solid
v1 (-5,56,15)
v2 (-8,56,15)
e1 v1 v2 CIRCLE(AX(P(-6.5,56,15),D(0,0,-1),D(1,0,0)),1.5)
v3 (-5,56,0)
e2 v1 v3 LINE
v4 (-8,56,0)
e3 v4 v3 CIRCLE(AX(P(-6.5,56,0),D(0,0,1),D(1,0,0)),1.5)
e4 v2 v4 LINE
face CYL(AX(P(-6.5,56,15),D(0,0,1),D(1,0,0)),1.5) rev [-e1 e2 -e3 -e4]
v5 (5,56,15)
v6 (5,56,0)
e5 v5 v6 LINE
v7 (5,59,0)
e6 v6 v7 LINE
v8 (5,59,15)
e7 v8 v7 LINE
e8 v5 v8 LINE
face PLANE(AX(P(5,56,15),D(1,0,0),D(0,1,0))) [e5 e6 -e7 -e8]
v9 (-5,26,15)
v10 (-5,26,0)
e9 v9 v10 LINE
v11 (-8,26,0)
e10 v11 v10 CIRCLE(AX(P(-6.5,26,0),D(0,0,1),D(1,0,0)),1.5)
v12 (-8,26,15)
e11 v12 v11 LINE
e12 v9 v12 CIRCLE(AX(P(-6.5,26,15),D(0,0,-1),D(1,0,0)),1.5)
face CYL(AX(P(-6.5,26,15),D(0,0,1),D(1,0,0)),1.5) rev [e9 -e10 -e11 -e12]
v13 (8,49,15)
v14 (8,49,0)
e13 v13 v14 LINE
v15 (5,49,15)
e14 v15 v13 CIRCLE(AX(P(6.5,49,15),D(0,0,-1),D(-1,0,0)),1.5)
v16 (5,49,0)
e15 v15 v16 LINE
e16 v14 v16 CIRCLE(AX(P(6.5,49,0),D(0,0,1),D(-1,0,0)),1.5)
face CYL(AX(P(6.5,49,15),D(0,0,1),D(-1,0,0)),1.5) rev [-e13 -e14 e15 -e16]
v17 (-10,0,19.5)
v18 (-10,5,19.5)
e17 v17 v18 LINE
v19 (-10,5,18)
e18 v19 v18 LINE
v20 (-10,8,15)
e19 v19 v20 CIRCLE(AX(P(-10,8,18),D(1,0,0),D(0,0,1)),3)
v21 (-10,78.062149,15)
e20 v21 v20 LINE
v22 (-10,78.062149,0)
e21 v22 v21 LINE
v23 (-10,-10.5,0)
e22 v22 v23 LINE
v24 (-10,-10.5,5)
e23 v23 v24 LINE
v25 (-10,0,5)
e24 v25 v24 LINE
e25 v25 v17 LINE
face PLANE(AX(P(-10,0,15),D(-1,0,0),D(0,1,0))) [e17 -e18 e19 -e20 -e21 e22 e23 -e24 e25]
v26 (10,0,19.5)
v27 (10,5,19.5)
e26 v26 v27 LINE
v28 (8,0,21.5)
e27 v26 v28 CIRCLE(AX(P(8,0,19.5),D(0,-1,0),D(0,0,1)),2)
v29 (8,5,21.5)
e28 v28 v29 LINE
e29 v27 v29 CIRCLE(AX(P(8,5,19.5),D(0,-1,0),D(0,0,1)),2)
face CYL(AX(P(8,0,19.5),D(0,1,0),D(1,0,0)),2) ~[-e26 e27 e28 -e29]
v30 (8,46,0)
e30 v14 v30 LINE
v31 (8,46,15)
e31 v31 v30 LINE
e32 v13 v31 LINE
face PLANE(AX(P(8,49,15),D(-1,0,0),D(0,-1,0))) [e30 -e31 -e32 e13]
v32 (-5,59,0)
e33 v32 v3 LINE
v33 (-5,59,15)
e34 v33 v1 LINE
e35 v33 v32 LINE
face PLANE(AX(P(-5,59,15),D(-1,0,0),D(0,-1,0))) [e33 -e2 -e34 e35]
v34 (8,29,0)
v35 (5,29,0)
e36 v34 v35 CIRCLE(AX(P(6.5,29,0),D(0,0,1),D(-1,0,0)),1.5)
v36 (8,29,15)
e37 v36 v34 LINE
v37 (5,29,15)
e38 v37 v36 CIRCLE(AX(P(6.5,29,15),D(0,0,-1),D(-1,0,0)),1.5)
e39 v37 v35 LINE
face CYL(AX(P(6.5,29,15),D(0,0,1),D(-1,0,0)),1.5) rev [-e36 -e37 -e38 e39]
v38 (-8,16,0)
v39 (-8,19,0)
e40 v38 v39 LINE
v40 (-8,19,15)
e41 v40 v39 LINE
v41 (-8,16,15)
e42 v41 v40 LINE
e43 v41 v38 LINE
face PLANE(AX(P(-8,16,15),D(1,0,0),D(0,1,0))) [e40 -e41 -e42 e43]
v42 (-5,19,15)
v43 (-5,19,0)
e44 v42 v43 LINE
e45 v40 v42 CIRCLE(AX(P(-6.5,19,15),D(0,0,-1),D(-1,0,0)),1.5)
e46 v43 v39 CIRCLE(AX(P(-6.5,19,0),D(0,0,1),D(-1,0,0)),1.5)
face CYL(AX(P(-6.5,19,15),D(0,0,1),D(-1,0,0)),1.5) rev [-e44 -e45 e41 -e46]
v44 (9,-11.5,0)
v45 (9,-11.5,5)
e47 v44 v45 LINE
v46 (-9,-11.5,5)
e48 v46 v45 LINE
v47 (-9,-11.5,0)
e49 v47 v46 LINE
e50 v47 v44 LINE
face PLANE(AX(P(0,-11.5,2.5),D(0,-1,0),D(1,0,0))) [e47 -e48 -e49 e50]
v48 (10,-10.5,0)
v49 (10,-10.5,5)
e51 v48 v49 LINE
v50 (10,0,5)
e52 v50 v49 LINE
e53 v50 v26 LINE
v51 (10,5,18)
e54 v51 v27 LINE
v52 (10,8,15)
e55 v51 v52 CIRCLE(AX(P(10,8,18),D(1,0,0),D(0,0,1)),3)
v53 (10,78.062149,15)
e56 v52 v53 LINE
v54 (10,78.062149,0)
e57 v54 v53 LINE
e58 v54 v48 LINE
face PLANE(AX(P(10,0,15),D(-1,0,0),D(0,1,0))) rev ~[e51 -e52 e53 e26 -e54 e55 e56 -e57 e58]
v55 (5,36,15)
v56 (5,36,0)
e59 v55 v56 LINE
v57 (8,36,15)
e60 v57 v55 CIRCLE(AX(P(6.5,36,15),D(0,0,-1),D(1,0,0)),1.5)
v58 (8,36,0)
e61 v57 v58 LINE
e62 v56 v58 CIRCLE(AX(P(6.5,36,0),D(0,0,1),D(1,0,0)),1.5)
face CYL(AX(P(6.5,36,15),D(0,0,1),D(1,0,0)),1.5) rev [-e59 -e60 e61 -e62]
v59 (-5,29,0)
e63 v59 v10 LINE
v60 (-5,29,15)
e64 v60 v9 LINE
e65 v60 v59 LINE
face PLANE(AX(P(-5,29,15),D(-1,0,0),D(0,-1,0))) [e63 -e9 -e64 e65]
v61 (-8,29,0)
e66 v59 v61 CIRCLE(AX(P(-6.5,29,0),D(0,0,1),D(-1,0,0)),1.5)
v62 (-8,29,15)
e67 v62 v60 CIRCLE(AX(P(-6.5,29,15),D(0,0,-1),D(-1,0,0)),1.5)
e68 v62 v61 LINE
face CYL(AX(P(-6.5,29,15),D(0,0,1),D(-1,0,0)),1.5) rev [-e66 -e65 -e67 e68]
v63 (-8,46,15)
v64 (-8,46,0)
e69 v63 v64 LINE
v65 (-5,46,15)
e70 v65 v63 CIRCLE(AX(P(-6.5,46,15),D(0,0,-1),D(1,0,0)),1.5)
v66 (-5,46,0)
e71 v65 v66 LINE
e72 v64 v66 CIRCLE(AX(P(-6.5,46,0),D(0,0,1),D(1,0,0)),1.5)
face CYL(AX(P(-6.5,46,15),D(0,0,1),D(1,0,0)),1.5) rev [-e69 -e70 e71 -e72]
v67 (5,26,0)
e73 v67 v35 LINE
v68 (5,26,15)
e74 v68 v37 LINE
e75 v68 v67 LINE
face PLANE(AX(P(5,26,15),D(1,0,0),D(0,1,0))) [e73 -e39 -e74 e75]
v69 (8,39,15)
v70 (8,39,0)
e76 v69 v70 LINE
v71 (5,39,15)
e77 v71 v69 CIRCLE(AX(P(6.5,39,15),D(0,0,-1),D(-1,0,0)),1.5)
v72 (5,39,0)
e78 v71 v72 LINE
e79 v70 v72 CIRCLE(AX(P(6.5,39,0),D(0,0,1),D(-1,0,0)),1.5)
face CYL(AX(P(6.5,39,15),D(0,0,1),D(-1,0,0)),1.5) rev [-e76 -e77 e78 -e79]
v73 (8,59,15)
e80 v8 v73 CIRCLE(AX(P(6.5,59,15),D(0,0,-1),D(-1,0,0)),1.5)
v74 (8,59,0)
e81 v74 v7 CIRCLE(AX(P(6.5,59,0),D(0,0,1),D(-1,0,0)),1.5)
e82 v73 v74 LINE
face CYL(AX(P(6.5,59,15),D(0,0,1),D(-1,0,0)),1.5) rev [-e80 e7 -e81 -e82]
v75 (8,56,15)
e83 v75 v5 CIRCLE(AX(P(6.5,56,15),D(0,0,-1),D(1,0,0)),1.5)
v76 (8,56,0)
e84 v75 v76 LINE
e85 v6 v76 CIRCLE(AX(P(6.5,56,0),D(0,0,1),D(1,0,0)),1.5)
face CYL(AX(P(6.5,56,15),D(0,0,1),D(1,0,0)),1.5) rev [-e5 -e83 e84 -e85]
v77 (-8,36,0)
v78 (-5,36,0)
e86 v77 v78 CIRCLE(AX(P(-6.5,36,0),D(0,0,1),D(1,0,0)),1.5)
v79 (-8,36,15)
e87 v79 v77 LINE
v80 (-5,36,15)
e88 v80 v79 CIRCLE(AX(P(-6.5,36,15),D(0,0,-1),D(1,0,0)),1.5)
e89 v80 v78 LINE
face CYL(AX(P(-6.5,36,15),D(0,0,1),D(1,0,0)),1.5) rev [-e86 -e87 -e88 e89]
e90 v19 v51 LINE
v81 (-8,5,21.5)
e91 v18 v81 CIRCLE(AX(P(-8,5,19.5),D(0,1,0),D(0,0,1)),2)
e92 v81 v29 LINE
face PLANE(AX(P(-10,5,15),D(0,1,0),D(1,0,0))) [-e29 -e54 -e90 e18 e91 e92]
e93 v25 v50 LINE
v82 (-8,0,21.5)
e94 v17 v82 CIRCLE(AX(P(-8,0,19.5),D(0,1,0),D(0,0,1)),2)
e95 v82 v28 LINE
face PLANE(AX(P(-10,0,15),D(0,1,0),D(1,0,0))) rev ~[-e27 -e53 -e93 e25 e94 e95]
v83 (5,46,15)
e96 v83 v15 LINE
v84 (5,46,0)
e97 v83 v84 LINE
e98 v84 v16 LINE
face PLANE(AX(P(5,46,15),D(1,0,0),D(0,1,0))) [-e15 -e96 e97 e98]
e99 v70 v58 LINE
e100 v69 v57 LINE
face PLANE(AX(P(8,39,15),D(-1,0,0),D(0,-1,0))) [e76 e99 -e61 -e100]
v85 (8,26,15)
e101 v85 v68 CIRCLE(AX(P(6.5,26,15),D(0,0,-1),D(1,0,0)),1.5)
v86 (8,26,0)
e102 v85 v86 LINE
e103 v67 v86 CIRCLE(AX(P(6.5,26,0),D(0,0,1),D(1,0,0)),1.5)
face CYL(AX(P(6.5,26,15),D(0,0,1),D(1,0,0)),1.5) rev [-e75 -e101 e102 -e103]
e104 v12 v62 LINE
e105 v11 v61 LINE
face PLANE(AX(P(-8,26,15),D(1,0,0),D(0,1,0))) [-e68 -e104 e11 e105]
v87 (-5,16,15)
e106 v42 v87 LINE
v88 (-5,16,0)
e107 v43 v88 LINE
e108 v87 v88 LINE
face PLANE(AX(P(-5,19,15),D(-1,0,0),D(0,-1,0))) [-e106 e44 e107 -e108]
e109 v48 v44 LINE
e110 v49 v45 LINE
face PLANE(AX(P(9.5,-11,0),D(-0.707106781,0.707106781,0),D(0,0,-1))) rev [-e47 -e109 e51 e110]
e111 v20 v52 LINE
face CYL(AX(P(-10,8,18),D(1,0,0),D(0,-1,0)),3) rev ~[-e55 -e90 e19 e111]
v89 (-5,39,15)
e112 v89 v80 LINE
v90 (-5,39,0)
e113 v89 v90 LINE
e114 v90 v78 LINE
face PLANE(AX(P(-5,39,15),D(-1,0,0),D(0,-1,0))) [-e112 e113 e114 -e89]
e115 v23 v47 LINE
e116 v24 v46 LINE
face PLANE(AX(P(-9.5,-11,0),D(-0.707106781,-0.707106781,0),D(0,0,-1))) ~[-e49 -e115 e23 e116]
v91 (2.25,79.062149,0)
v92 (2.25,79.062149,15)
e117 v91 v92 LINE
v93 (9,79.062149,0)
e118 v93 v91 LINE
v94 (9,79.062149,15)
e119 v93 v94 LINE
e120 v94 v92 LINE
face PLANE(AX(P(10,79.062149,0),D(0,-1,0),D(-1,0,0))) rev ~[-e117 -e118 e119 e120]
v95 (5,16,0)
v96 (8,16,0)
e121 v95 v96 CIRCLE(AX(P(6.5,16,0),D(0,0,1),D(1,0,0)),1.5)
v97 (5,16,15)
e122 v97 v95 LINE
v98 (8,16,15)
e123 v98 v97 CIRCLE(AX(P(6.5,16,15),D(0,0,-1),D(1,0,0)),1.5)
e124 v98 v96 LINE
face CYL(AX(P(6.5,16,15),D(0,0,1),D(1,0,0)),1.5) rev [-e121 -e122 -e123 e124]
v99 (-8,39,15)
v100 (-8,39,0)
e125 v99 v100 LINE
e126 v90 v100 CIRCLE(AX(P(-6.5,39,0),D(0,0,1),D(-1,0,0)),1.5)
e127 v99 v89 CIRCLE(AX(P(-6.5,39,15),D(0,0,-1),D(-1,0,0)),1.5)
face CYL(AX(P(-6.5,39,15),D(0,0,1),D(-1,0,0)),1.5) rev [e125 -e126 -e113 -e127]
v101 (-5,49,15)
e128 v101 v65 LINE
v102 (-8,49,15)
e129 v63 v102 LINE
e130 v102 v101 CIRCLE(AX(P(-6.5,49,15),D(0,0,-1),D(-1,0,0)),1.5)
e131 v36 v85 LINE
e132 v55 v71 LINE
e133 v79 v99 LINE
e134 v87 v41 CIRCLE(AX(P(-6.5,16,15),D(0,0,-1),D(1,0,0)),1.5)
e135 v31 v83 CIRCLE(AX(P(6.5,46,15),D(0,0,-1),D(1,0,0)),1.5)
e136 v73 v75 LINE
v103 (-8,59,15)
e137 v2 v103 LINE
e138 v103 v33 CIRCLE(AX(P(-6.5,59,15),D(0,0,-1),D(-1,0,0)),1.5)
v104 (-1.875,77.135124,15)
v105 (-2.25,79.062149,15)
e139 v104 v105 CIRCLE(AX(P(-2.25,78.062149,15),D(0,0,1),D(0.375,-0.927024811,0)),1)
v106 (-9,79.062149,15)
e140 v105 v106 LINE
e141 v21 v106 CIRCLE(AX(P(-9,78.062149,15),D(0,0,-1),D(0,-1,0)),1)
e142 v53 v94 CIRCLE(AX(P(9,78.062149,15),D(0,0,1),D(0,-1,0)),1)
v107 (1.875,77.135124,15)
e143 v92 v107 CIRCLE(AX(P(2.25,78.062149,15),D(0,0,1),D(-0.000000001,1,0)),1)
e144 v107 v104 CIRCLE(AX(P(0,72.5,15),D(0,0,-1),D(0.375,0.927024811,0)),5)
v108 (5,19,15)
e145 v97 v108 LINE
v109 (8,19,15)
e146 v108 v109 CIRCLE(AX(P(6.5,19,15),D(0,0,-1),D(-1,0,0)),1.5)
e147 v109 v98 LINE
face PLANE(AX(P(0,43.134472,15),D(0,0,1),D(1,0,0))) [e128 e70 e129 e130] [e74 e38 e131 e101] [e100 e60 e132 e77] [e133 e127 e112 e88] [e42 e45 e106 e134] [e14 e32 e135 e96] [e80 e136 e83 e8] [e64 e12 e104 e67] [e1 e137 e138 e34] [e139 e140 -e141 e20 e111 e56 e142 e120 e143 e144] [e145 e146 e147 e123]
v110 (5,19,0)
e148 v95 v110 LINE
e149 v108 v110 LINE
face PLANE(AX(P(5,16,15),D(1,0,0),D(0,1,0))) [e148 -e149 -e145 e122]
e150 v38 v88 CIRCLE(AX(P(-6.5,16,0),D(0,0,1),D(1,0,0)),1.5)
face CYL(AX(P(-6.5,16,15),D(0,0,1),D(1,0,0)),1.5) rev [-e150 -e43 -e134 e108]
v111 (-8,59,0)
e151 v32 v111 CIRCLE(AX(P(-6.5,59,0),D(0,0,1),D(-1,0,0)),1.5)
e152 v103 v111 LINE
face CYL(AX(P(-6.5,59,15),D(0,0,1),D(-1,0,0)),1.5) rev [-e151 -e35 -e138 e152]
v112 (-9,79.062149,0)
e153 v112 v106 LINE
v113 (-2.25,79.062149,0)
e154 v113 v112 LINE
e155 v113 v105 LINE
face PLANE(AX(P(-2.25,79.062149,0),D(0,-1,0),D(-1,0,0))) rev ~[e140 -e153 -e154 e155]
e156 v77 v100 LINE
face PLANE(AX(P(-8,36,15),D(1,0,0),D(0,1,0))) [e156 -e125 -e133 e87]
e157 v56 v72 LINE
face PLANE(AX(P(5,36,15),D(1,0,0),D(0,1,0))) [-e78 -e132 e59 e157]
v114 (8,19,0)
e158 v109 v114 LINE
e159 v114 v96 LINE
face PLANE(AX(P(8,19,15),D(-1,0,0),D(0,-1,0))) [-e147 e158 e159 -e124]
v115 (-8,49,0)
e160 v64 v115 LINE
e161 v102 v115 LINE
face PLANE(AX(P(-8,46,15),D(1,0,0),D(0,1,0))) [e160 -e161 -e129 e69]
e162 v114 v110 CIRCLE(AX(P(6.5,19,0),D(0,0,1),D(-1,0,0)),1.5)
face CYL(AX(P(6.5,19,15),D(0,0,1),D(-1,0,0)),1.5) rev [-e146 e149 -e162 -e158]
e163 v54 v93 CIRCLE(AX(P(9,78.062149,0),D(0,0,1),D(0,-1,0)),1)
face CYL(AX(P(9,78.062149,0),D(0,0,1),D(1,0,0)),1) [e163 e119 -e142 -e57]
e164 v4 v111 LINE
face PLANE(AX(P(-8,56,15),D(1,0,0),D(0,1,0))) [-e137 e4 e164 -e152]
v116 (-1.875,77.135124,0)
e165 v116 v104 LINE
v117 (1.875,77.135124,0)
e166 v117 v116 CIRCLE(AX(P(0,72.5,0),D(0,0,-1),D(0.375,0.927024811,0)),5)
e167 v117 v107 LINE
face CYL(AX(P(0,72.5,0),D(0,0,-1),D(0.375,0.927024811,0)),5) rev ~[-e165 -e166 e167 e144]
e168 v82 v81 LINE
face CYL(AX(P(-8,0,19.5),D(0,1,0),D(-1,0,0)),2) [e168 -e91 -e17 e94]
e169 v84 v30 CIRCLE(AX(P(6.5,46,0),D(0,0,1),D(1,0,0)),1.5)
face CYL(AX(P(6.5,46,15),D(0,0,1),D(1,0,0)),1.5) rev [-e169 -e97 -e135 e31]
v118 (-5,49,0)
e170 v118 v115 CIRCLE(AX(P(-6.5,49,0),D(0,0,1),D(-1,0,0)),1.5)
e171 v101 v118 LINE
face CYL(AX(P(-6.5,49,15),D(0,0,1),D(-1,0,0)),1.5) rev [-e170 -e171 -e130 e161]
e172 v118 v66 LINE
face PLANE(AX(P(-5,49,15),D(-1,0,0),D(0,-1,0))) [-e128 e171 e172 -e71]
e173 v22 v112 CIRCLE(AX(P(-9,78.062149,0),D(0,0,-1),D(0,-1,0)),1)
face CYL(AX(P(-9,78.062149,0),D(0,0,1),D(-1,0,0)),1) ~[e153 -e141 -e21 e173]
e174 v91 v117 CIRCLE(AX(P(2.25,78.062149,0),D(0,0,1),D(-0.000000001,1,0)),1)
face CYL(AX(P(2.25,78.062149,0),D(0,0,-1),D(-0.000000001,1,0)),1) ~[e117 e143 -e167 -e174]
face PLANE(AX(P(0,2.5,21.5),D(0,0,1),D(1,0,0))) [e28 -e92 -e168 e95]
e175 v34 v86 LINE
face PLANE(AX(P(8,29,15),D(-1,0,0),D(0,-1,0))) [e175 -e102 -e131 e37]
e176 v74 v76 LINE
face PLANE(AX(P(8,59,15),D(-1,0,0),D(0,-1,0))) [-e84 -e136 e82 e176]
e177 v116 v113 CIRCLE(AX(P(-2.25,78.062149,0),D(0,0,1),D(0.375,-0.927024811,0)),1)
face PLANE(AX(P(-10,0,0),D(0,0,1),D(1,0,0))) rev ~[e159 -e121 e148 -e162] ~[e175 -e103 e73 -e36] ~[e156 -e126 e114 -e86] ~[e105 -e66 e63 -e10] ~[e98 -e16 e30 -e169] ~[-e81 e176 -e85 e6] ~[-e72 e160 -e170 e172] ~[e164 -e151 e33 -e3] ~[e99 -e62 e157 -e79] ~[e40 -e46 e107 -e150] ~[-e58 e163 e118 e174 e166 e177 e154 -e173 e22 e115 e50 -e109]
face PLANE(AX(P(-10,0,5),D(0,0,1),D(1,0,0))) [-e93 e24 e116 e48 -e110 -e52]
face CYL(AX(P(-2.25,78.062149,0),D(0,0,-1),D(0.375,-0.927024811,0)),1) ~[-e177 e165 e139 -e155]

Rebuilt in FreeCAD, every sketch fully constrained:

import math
import FreeCAD as App
import Part
import Sketcher

V = App.Vector


def edges_at(feature, points):
    """Names of the edges that pass closest to the given points."""
    edges = feature.Shape.Edges
    near = lambda p: min(range(len(edges)), key=lambda i: edges[i].distToShape(Part.Vertex(*p))[0])
    return sorted({f"Edge{near(p) + 1}" for p in points})

doc = App.newDocument("Part")
body = doc.addObject("PartDesign::Body", "Body")

sketch1 = body.newObject("Sketcher::SketchObject", "Sketch")
sketch1.AttachmentSupport = (doc.getObject("XY_Plane"), [""])
sketch1.MapMode = "FlatFace"
sketch1.addGeometry([
    Part.LineSegment(V(-2.2, 79.1, 0), V(-10, 79.1, 0)),
    Part.LineSegment(V(-10, 79.1, 0), V(-10, 0, 0)),
    Part.LineSegment(V(-10, 0, 0), V(10, 0, 0)),
    Part.LineSegment(V(10, 0, 0), V(10, 79.1, 0)),
    Part.LineSegment(V(10, 79.1, 0), V(2.2, 79.1, 0)),
    Part.ArcOfCircle(Part.Circle(V(2.3, 78.1, 0), V(0, 0, 1), 1), math.radians(90), math.radians(248)),
    Part.ArcOfCircle(Part.Circle(V(0, 72.5, 0), V(0, 0, 1), 5), math.radians(112), math.radians(428)),
    Part.ArcOfCircle(Part.Circle(V(-2.3, 78.1, 0), V(0, 0, 1), 1), math.radians(-68), math.radians(90)),
], False)
sketch1.addConstraint([
    Sketcher.Constraint("Coincident", 0, 2, 1, 1),
    Sketcher.Constraint("Coincident", 1, 2, 2, 1),
    Sketcher.Constraint("Coincident", 2, 2, 3, 1),
    Sketcher.Constraint("Coincident", 3, 2, 4, 1),
    Sketcher.Constraint("Tangent", 4, 2, 5, 1),
    Sketcher.Constraint("Tangent", 5, 2, 6, 2),
    Sketcher.Constraint("Tangent", 6, 1, 7, 1),
    Sketcher.Constraint("Tangent", 7, 2, 0, 1),
    Sketcher.Constraint("Horizontal", 0),
    Sketcher.Constraint("Vertical", 1),
    Sketcher.Constraint("Horizontal", 2),
    Sketcher.Constraint("Vertical", 3),
    Sketcher.Constraint("Horizontal", 4),
    Sketcher.Constraint("Equal", 5, 7),
    Sketcher.Constraint("Symmetric", 1, 2, 2, 2, -1, 1),
    Sketcher.Constraint("Symmetric", 5, 3, 7, 3, -2),
    Sketcher.Constraint("Radius", 5, 1.0),
    Sketcher.Constraint("Radius", 6, 5.0),
    Sketcher.Constraint("DistanceX", 2, 1, 2, 2, 20.0),
    Sketcher.Constraint("DistanceX", 0, 2, 0, 1, 7.75),
    Sketcher.Constraint("DistanceY", -1, 1, 6, 3, 72.5),
])
pad1 = body.newObject("PartDesign::Pad", "Pad")
pad1.Profile = sketch1
pad1.Length = 15

sketch2 = body.newObject("Sketcher::SketchObject", "Sketch001")
sketch2.AttachmentSupport = (doc.getObject("XY_Plane"), [""])
sketch2.MapMode = "FlatFace"
sketch2.AttachmentOffset = App.Placement(V(0, 0, 15), App.Rotation())
sketch2.addGeometry([
    Part.LineSegment(V(-8, 59, 0), V(-8, 56, 0)),
    Part.ArcOfCircle(Part.Circle(V(-6.5, 56, 0), V(0, 0, 1), 1.5), math.radians(180), math.radians(360)),
    Part.LineSegment(V(-5, 56, 0), V(-5, 59, 0)),
    Part.ArcOfCircle(Part.Circle(V(-6.5, 59, 0), V(0, 0, 1), 1.5), math.radians(0), math.radians(180)),
    Part.LineSegment(V(5, 59, 0), V(5, 56, 0)),
    Part.ArcOfCircle(Part.Circle(V(6.5, 56, 0), V(0, 0, 1), 1.5), math.radians(180), math.radians(360)),
    Part.LineSegment(V(8, 56, 0), V(8, 59, 0)),
    Part.ArcOfCircle(Part.Circle(V(6.5, 59, 0), V(0, 0, 1), 1.5), math.radians(0), math.radians(180)),
], False)
sketch2.addConstraint([
    Sketcher.Constraint("Tangent", 0, 2, 1, 1),
    Sketcher.Constraint("Tangent", 1, 2, 2, 1),
    Sketcher.Constraint("Tangent", 2, 2, 3, 1),
    Sketcher.Constraint("Tangent", 3, 2, 0, 1),
    Sketcher.Constraint("Tangent", 4, 2, 5, 1),
    Sketcher.Constraint("Tangent", 5, 2, 6, 1),
    Sketcher.Constraint("Tangent", 6, 2, 7, 1),
    Sketcher.Constraint("Tangent", 7, 2, 4, 1),
    Sketcher.Constraint("Vertical", 0),
    Sketcher.Constraint("Vertical", 2),
    Sketcher.Constraint("Vertical", 4),
    Sketcher.Constraint("Vertical", 6),
    Sketcher.Constraint("Equal", 3, 5),
    Sketcher.Constraint("Symmetric", 1, 3, 5, 3, -2),
    Sketcher.Constraint("Horizontal", 3, 3, 7, 3),
    Sketcher.Constraint("Radius", 1, 1.5),
    Sketcher.Constraint("DistanceY", 0, 2, 0, 1, 3.0),
    Sketcher.Constraint("DistanceY", -1, 1, 1, 3, 56.0),
    Sketcher.Constraint("DistanceX", 0, 2, -1, 1, 8.0),
])
pocket1 = body.newObject("PartDesign::Pocket", "Pocket")
pocket1.Profile = sketch2
pocket1.Type = "ThroughAll"
doc.recompute()

linearpattern = body.newObject("PartDesign::LinearPattern", "LinearPattern")
linearpattern.Originals = [pocket1]
linearpattern.Direction = (doc.getObject("Y_Axis"), [""])
linearpattern.Mode = "offset"
linearpattern.Offset = 10
linearpattern.Occurrences = 5
linearpattern.Reversed = True
body.Tip = linearpattern

sketch3 = body.newObject("Sketcher::SketchObject", "Sketch002")
sketch3.AttachmentSupport = (doc.getObject("XZ_Plane"), [""])
sketch3.MapMode = "FlatFace"
sketch3.addGeometry([
    Part.LineSegment(V(-10, 5, 0), V(-10, 0, 0)),
    Part.LineSegment(V(-10, 0, 0), V(10, 0, 0)),
    Part.LineSegment(V(10, 0, 0), V(10, 5, 0)),
    Part.LineSegment(V(10, 5, 0), V(-10, 5, 0)),
], False)
sketch3.addConstraint([
    Sketcher.Constraint("Coincident", 0, 2, 1, 1),
    Sketcher.Constraint("Coincident", 1, 2, 2, 1),
    Sketcher.Constraint("Coincident", 2, 2, 3, 1),
    Sketcher.Constraint("Coincident", 3, 2, 0, 1),
    Sketcher.Constraint("Vertical", 0),
    Sketcher.Constraint("Horizontal", 1),
    Sketcher.Constraint("Vertical", 2),
    Sketcher.Constraint("Horizontal", 3),
    Sketcher.Constraint("Symmetric", 0, 2, 1, 2, -1, 1),
    Sketcher.Constraint("DistanceX", 1, 1, 1, 2, 20.0),
    Sketcher.Constraint("DistanceY", 0, 2, 0, 1, 5.0),
])
pad2 = body.newObject("PartDesign::Pad", "Pad001")
pad2.Profile = sketch3
pad2.Length = 11.5
doc.recompute()

chamfer = body.newObject("PartDesign::Chamfer", "Chamfer")
chamfer.Base = (pad2, edges_at(pad2, [(-10, -11.5, 2.5), (10, -11.5, 2.5)]))
chamfer.Size = 1
doc.recompute()

fillet = body.newObject("PartDesign::Fillet", "Fillet")
fillet.Base = (chamfer, edges_at(chamfer, [(10, 79.062, 7.5), (-10, 79.062, 7.5)]))
fillet.Radius = 1

sketch4 = body.newObject("Sketcher::SketchObject", "Sketch003")
sketch4.AttachmentSupport = (doc.getObject("XY_Plane"), [""])
sketch4.MapMode = "FlatFace"
sketch4.AttachmentOffset = App.Placement(V(0, 0, 15), App.Rotation())
sketch4.addGeometry([
    Part.LineSegment(V(-10, 5, 0), V(-10, 0, 0)),
    Part.LineSegment(V(-10, 0, 0), V(10, 0, 0)),
    Part.LineSegment(V(10, 0, 0), V(10, 5, 0)),
    Part.LineSegment(V(10, 5, 0), V(-10, 5, 0)),
], False)
sketch4.addConstraint([
    Sketcher.Constraint("Coincident", 0, 2, 1, 1),
    Sketcher.Constraint("Coincident", 1, 2, 2, 1),
    Sketcher.Constraint("Coincident", 2, 2, 3, 1),
    Sketcher.Constraint("Coincident", 3, 2, 0, 1),
    Sketcher.Constraint("Vertical", 0),
    Sketcher.Constraint("Horizontal", 1),
    Sketcher.Constraint("Vertical", 2),
    Sketcher.Constraint("Horizontal", 3),
    Sketcher.Constraint("Symmetric", 0, 2, 1, 2, -1, 1),
    Sketcher.Constraint("DistanceX", 1, 1, 1, 2, 20.0),
    Sketcher.Constraint("DistanceY", 0, 2, 0, 1, 5.0),
])
pad3 = body.newObject("PartDesign::Pad", "Pad002")
pad3.Profile = sketch4
pad3.Length = 6.5
doc.recompute()

fillet2 = body.newObject("PartDesign::Fillet", "Fillet001")
fillet2.Base = (pad3, edges_at(pad3, [(-10, 2.5, 21.5), (10, 2.5, 21.5)]))
fillet2.Radius = 2
doc.recompute()

fillet3 = body.newObject("PartDesign::Fillet", "Fillet002")
fillet3.Base = (fillet2, edges_at(fillet2, [(0, 5, 15)]))
fillet3.Radius = 3

doc.recompute()
